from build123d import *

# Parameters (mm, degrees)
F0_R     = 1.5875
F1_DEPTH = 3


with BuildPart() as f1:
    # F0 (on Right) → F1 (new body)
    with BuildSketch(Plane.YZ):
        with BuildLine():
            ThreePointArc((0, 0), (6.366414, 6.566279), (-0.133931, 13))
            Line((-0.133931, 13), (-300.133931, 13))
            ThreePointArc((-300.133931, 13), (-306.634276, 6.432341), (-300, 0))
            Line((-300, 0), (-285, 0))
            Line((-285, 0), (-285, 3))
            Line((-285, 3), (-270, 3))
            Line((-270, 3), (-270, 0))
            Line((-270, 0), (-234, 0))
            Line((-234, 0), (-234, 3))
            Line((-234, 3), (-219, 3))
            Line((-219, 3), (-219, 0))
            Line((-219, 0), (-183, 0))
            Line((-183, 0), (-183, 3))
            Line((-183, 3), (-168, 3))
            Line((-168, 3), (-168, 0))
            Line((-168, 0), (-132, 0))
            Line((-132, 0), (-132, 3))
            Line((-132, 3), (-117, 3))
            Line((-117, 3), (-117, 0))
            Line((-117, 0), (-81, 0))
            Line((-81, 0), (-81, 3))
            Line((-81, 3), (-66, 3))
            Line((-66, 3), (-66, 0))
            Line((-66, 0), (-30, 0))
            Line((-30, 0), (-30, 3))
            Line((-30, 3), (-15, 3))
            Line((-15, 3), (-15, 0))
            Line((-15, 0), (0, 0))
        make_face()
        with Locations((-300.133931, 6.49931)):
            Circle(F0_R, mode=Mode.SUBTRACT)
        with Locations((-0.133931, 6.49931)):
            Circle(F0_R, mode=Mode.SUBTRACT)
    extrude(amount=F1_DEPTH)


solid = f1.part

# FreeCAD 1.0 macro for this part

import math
import FreeCAD as App
import Part
import Sketcher

V = App.Vector
Q = App.Units.Quantity

doc = App.newDocument("Part")
body = doc.addObject("PartDesign::Body", "Body")

# Sketch on YZ plane
sketch1 = body.newObject("Sketcher::SketchObject", "Sketch")
sketch1.AttachmentSupport = (doc.getObject("YZ_Plane"), [""])
sketch1.MapMode = "FlatFace"
sketch1.addGeometry(Part.ArcOfCircle(Part.Circle(V(-0.1, 6.5, 0), V(0, 0, 1), 6.5), math.radians(-89), math.radians(90)), False)
sketch1.addGeometry(Part.LineSegment(V(-0.1, 13, 0), V(-300.1, 13, 0)), False)
sketch1.addGeometry(Part.ArcOfCircle(Part.Circle(V(-300.1, 6.5, 0), V(0, 0, 1), 6.5), math.radians(90), math.radians(271)), False)
sketch1.addGeometry(Part.LineSegment(V(-300, 0, 0), V(-285, 0, 0)), False)
sketch1.addGeometry(Part.LineSegment(V(-285, 0, 0), V(-285, 3, 0)), False)
sketch1.addGeometry(Part.LineSegment(V(-285, 3, 0), V(-270, 3, 0)), False)
sketch1.addGeometry(Part.LineSegment(V(-270, 3, 0), V(-270, 0, 0)), False)
sketch1.addGeometry(Part.LineSegment(V(-270, 0, 0), V(-234, 0, 0)), False)
sketch1.addGeometry(Part.LineSegment(V(-234, 0, 0), V(-234, 3, 0)), False)
sketch1.addGeometry(Part.LineSegment(V(-234, 3, 0), V(-219, 3, 0)), False)
sketch1.addGeometry(Part.LineSegment(V(-219, 3, 0), V(-219, 0, 0)), False)
sketch1.addGeometry(Part.LineSegment(V(-219, 0, 0), V(-183, 0, 0)), False)
sketch1.addGeometry(Part.LineSegment(V(-183, 0, 0), V(-183, 3, 0)), False)
sketch1.addGeometry(Part.LineSegment(V(-183, 3, 0), V(-168, 3, 0)), False)
sketch1.addGeometry(Part.LineSegment(V(-168, 3, 0), V(-168, 0, 0)), False)
sketch1.addGeometry(Part.LineSegment(V(-168, 0, 0), V(-132, 0, 0)), False)
sketch1.addGeometry(Part.LineSegment(V(-132, 0, 0), V(-132, 3, 0)), False)
sketch1.addGeometry(Part.LineSegment(V(-132, 3, 0), V(-117, 3, 0)), False)
sketch1.addGeometry(Part.LineSegment(V(-117, 3, 0), V(-117, 0, 0)), False)
sketch1.addGeometry(Part.LineSegment(V(-117, 0, 0), V(-81, 0, 0)), False)
sketch1.addGeometry(Part.LineSegment(V(-81, 0, 0), V(-81, 3, 0)), False)
sketch1.addGeometry(Part.LineSegment(V(-81, 3, 0), V(-66, 3, 0)), False)
sketch1.addGeometry(Part.LineSegment(V(-66, 3, 0), V(-66, 0, 0)), False)
sketch1.addGeometry(Part.LineSegment(V(-66, 0, 0), V(-30, 0, 0)), False)
sketch1.addGeometry(Part.LineSegment(V(-30, 0, 0), V(-30, 3, 0)), False)
sketch1.addGeometry(Part.LineSegment(V(-30, 3, 0), V(-15, 3, 0)), False)
sketch1.addGeometry(Part.LineSegment(V(-15, 3, 0), V(-15, 0, 0)), False)
sketch1.addGeometry(Part.LineSegment(V(-15, 0, 0), V(0, 0, 0)), False)
sketch1.addGeometry(Part.Circle(V(-300.1, 6.5, 0), V(0, 0, 1), 1.6), False)
sketch1.addGeometry(Part.Circle(V(-0.1, 6.5, 0), V(0, 0, 1), 1.6), False)
sketch1.addConstraint(Sketcher.Constraint("Tangent", 0, 2, 1, 1))
sketch1.addConstraint(Sketcher.Constraint("Tangent", 1, 2, 2, 1))
sketch1.addConstraint(Sketcher.Constraint("Coincident", 2, 2, 3, 1))
sketch1.addConstraint(Sketcher.Constraint("Coincident", 3, 2, 4, 1))
sketch1.addConstraint(Sketcher.Constraint("Coincident", 4, 2, 5, 1))
sketch1.addConstraint(Sketcher.Constraint("Coincident", 5, 2, 6, 1))
sketch1.addConstraint(Sketcher.Constraint("Coincident", 6, 2, 7, 1))
sketch1.addConstraint(Sketcher.Constraint("Coincident", 7, 2, 8, 1))
sketch1.addConstraint(Sketcher.Constraint("Coincident", 8, 2, 9, 1))
sketch1.addConstraint(Sketcher.Constraint("Coincident", 9, 2, 10, 1))
sketch1.addConstraint(Sketcher.Constraint("Coincident", 10, 2, 11, 1))
sketch1.addConstraint(Sketcher.Constraint("Coincident", 11, 2, 12, 1))
sketch1.addConstraint(Sketcher.Constraint("Coincident", 12, 2, 13, 1))
sketch1.addConstraint(Sketcher.Constraint("Coincident", 13, 2, 14, 1))
sketch1.addConstraint(Sketcher.Constraint("Coincident", 14, 2, 15, 1))
sketch1.addConstraint(Sketcher.Constraint("Coincident", 15, 2, 16, 1))
sketch1.addConstraint(Sketcher.Constraint("Coincident", 16, 2, 17, 1))
sketch1.addConstraint(Sketcher.Constraint("Coincident", 17, 2, 18, 1))
sketch1.addConstraint(Sketcher.Constraint("Coincident", 18, 2, 19, 1))
sketch1.addConstraint(Sketcher.Constraint("Coincident", 19, 2, 20, 1))
sketch1.addConstraint(Sketcher.Constraint("Coincident", 20, 2, 21, 1))
sketch1.addConstraint(Sketcher.Constraint("Coincident", 21, 2, 22, 1))
sketch1.addConstraint(Sketcher.Constraint("Coincident", 22, 2, 23, 1))
sketch1.addConstraint(Sketcher.Constraint("Coincident", 23, 2, 24, 1))
sketch1.addConstraint(Sketcher.Constraint("Coincident", 24, 2, 25, 1))
sketch1.addConstraint(Sketcher.Constraint("Coincident", 25, 2, 26, 1))
sketch1.addConstraint(Sketcher.Constraint("Coincident", 26, 2, 27, 1))
sketch1.addConstraint(Sketcher.Constraint("Coincident", 27, 2, 0, 1))
sketch1.addConstraint(Sketcher.Constraint("Horizontal", 1))
sketch1.addConstraint(Sketcher.Constraint("Horizontal", 3))
sketch1.addConstraint(Sketcher.Constraint("Vertical", 4))
sketch1.addConstraint(Sketcher.Constraint("Horizontal", 5))
sketch1.addConstraint(Sketcher.Constraint("Vertical", 6))
sketch1.addConstraint(Sketcher.Constraint("Horizontal", 7))
sketch1.addConstraint(Sketcher.Constraint("Vertical", 8))
sketch1.addConstraint(Sketcher.Constraint("Horizontal", 9))
sketch1.addConstraint(Sketcher.Constraint("Vertical", 10))
sketch1.addConstraint(Sketcher.Constraint("Horizontal", 11))
sketch1.addConstraint(Sketcher.Constraint("Vertical", 12))
sketch1.addConstraint(Sketcher.Constraint("Horizontal", 13))
sketch1.addConstraint(Sketcher.Constraint("Vertical", 14))
sketch1.addConstraint(Sketcher.Constraint("Horizontal", 15))
sketch1.addConstraint(Sketcher.Constraint("Vertical", 16))
sketch1.addConstraint(Sketcher.Constraint("Horizontal", 17))
sketch1.addConstraint(Sketcher.Constraint("Vertical", 18))
sketch1.addConstraint(Sketcher.Constraint("Horizontal", 19))
sketch1.addConstraint(Sketcher.Constraint("Vertical", 20))
sketch1.addConstraint(Sketcher.Constraint("Horizontal", 21))
sketch1.addConstraint(Sketcher.Constraint("Vertical", 22))
sketch1.addConstraint(Sketcher.Constraint("Horizontal", 23))
sketch1.addConstraint(Sketcher.Constraint("Vertical", 24))
sketch1.addConstraint(Sketcher.Constraint("Horizontal", 25))
sketch1.addConstraint(Sketcher.Constraint("Vertical", 26))
sketch1.addConstraint(Sketcher.Constraint("Horizontal", 27))
sketch1.addConstraint(Sketcher.Constraint("Coincident", 27, 2, -1, 1))
sketch1.addConstraint(Sketcher.Constraint("Coincident", 28, 3, 2, 3))
sketch1.addConstraint(Sketcher.Constraint("Coincident", 29, 3, 0, 3))
sketch1.addConstraint(Sketcher.Constraint("Equal", 0, 2))
sketch1.addConstraint(Sketcher.Constraint("Equal", 28, 29))
sketch1.addConstraint(Sketcher.Constraint("PointOnObject", 2, 2, -1))
sketch1.addConstraint(Sketcher.Constraint("PointOnObject", 6, 2, -1))
sketch1.addConstraint(Sketcher.Constraint("PointOnObject", 10, 2, -1))
sketch1.addConstraint(Sketcher.Constraint("PointOnObject", 14, 2, -1))
sketch1.addConstraint(Sketcher.Constraint("PointOnObject", 18, 2, -1))
sketch1.addConstraint(Sketcher.Constraint("PointOnObject", 22, 2, -1))
sketch1.addConstraint(Sketcher.Constraint("Horizontal", 5, 2, 8, 2))
sketch1.addConstraint(Sketcher.Constraint("Horizontal", 9, 2, 12, 2))
sketch1.addConstraint(Sketcher.Constraint("Horizontal", 13, 2, 16, 2))
sketch1.addConstraint(Sketcher.Constraint("Horizontal", 17, 2, 20, 2))
sketch1.addConstraint(Sketcher.Constraint("Horizontal", 21, 2, 24, 2))
sketch1.addConstraint(Sketcher.Constraint("Equal", 3, 5))
sketch1.addConstraint(Sketcher.Constraint("Equal", 5, 9))
sketch1.addConstraint(Sketcher.Constraint("Equal", 7, 11))
sketch1.addConstraint(Sketcher.Constraint("Equal", 9, 13))
sketch1.addConstraint(Sketcher.Constraint("Equal", 11, 15))
sketch1.addConstraint(Sketcher.Constraint("Equal", 13, 17))
sketch1.addConstraint(Sketcher.Constraint("Equal", 15, 19))
sketch1.addConstraint(Sketcher.Constraint("Equal", 17, 21))
sketch1.addConstraint(Sketcher.Constraint("Equal", 19, 23))
sketch1.addConstraint(Sketcher.Constraint("Equal", 21, 25))
sketch1.addConstraint(Sketcher.Constraint("Equal", 25, 27))
sketch1.addConstraint(Sketcher.Constraint("DistanceX", 1, 2, 1, 1, Q("300 mm")))
sketch1.addConstraint(Sketcher.Constraint("DistanceX", 3, 1, 3, 2, Q("15 mm")))
sketch1.addConstraint(Sketcher.Constraint("DistanceY", 4, 1, 4, 2, Q("3 mm")))
sketch1.addConstraint(Sketcher.Constraint("Diameter", 28, Q("3.175 mm")))
sketch1.addConstraint(Sketcher.Constraint("DistanceY", -1, 1, 0, 2, Q("13 mm")))
sketch1.addConstraint(Sketcher.Constraint("Radius", 0, Q("6.50069 mm")))
pad1 = body.newObject("PartDesign::Pad", "Pad")
pad1.Profile = sketch1
pad1.Length = 3

doc.recompute()
